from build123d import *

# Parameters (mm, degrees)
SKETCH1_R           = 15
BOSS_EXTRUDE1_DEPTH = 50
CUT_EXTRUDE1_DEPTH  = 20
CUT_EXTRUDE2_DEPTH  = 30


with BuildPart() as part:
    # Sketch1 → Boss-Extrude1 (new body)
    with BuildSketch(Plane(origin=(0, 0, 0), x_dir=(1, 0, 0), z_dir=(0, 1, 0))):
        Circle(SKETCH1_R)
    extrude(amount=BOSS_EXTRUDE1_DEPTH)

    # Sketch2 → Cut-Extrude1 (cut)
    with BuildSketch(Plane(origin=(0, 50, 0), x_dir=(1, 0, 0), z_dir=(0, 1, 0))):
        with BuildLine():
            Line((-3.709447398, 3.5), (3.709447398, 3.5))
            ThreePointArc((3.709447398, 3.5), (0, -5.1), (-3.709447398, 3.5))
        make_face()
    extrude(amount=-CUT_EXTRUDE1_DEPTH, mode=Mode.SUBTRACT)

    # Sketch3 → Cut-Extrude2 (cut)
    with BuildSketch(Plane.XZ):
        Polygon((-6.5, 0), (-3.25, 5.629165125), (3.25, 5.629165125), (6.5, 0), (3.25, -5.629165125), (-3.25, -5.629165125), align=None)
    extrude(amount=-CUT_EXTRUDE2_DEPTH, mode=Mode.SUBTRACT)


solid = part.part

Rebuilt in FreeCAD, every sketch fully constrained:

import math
import FreeCAD as App
import Part
import Sketcher
Q = App.Units.Quantity


def add_polygon(sketch, points):
    """Adds a closed chain of lines whose ends are joined by coincident constraints."""
    first, n = sketch.GeometryCount, len(points)
    for a, b in zip(points, points[1:] + points[:1]):
        sketch.addGeometry(Part.LineSegment(App.Vector(*a, 0), App.Vector(*b, 0)), False)
    for i in range(n):
        sketch.addConstraint(Sketcher.Constraint("Coincident", first + i, 2, first + (i + 1) % n, 1))

doc = App.newDocument("Part")
body = doc.addObject("PartDesign::Body", "Body")

# Sketch on XZ plane
sketch1 = body.newObject("Sketcher::SketchObject", "Sketch")
sketch1.AttachmentSupport = (doc.getObject("XZ_Plane"), [""])
sketch1.MapMode = "FlatFace"
sketch1.addGeometry(Part.Circle(App.Vector(0, 0, 0), App.Vector(0, 0, 1), 15), False)
sketch1.addConstraint(Sketcher.Constraint("Coincident", 0, 3, -1, 1))
sketch1.addConstraint(Sketcher.Constraint("Diameter", 0, Q("30 mm")))
pad1 = body.newObject("PartDesign::Pad", "Pad")
pad1.Profile = sketch1
pad1.Length = 50
pad1.Reversed = True

# Sketch on XZ plane
sketch2 = body.newObject("Sketcher::SketchObject", "Sketch001")
sketch2.AttachmentSupport = (doc.getObject("XZ_Plane"), [""])
sketch2.MapMode = "FlatFace"
sketch2.AttachmentOffset = App.Placement(App.Vector(0, 0, -50), App.Rotation())
sketch2.addGeometry(Part.LineSegment(App.Vector(3.709447, -3.5, 0), App.Vector(-3.709447, -3.5, 0)), False)
sketch2.addGeometry(Part.ArcOfCircle(Part.Circle(App.Vector(0, 0, 0), App.Vector(0, 0, 1), 5.1), math.radians(-43.335923), math.radians(223.335923)), False)
sketch2.addConstraint(Sketcher.Constraint("Coincident", 0, 1, 1, 1))
sketch2.addConstraint(Sketcher.Constraint("Coincident", 1, 2, 0, 2))
sketch2.addConstraint(Sketcher.Constraint("Horizontal", 0))
sketch2.addConstraint(Sketcher.Constraint("Coincident", 1, 3, -1, 1))
sketch2.addConstraint(Sketcher.Constraint("Radius", 1, Q("5.1 mm")))
sketch2.addConstraint(Sketcher.Constraint("DistanceY", 0, 1, -1, 1, Q("3.5 mm")))
pocket1 = body.newObject("PartDesign::Pocket", "Pocket")
pocket1.Profile = sketch2
pocket1.Length = 20
pocket1.Reversed = True

# Sketch on XZ plane
sketch3 = body.newObject("Sketcher::SketchObject", "Sketch002")
sketch3.AttachmentSupport = (doc.getObject("XZ_Plane"), [""])
sketch3.MapMode = "FlatFace"
add_polygon(sketch3, [(-3.25, 5.629165), (-6.5, 0), (-3.25, -5.629165), (3.25, -5.629165), (6.5, 0), (3.25, 5.629165)])  # lines 0-5
sketch3.addConstraint(Sketcher.Constraint("Horizontal", 2))
sketch3.addConstraint(Sketcher.Constraint("Horizontal", 5))
sketch3.addConstraint(Sketcher.Constraint("Symmetric", 0, 2, 3, 2, -1, 1))
sketch3.addConstraint(Sketcher.Constraint("Symmetric", 1, 2, 4, 2, -1, 1))
sketch3.addConstraint(Sketcher.Constraint("PointOnObject", 0, 2, -1))
sketch3.addConstraint(Sketcher.Constraint("Parallel", 0, 3))
sketch3.addConstraint(Sketcher.Constraint("Vertical", 2, 2, 4, 2))
sketch3.addConstraint(Sketcher.Constraint("Angle", 0, Q("-120 deg")))
sketch3.addConstraint(Sketcher.Constraint("DistanceX", 2, 1, 2, 2, Q("6.5 mm")))
sketch3.addConstraint(Sketcher.Constraint("DistanceX", 0, 2, 3, 2, Q("13 mm")))
pocket2 = body.newObject("PartDesign::Pocket", "Pocket001")
pocket2.Profile = sketch3
pocket2.Length = 30

doc.recompute()
